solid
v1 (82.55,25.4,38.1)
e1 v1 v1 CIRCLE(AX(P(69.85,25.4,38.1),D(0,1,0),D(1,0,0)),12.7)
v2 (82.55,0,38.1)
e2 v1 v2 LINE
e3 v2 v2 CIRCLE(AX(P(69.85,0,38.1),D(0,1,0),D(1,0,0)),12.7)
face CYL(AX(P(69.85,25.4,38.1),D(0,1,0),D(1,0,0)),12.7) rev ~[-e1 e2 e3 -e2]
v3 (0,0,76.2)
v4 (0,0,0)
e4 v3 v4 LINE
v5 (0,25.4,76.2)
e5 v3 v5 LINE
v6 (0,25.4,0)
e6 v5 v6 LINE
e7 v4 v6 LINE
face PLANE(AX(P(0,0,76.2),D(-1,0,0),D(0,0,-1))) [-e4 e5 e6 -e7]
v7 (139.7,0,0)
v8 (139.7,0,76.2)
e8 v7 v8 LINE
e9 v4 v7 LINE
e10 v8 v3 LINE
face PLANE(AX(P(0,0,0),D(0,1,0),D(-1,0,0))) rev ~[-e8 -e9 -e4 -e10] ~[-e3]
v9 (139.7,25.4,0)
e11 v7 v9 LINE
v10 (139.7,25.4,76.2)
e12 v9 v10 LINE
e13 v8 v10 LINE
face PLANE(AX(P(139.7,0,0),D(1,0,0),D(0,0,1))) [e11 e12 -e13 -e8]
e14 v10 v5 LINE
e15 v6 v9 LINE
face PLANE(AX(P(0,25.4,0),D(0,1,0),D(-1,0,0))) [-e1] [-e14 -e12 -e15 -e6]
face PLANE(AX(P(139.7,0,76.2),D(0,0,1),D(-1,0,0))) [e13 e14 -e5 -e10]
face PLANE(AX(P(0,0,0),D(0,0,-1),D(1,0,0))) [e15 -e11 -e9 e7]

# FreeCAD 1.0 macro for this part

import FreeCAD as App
import Part
import Sketcher

V = App.Vector
Q = App.Units.Quantity

doc = App.newDocument("Part")
body = doc.addObject("PartDesign::Body", "Body")

sketch1 = doc.addObject("Sketcher::SketchObject", "Sketch")
body.addObject(sketch1)
sketch1.AttachmentSupport = (doc.XZ_Plane, [""])
sketch1.MapMode = "FlatFace"
sketch1.addGeometry(Part.LineSegment(V(140, 0, 0), V(0, 0, 0)), False)
sketch1.addGeometry(Part.LineSegment(V(0, 0, 0), V(0, 76, 0)), False)
sketch1.addGeometry(Part.LineSegment(V(0, 76, 0), V(140, 76, 0)), False)
sketch1.addGeometry(Part.LineSegment(V(140, 76, 0), V(140, 0, 0)), False)
sketch1.addConstraint(Sketcher.Constraint("Coincident", 0, 2, 1, 1))
sketch1.addConstraint(Sketcher.Constraint("Coincident", 1, 2, 2, 1))
sketch1.addConstraint(Sketcher.Constraint("Coincident", 2, 2, 3, 1))
sketch1.addConstraint(Sketcher.Constraint("Coincident", 3, 2, 0, 1))
sketch1.addConstraint(Sketcher.Constraint("Horizontal", 0))
sketch1.addConstraint(Sketcher.Constraint("Vertical", 1))
sketch1.addConstraint(Sketcher.Constraint("Horizontal", 2))
sketch1.addConstraint(Sketcher.Constraint("Vertical", 3))
sketch1.addConstraint(Sketcher.Constraint("Coincident", 0, 2, -1, 1))
sketch1.addConstraint(Sketcher.Constraint("DistanceY", 1, 1, 1, 2, Q("3 in")))
sketch1.addConstraint(Sketcher.Constraint("DistanceX", 0, 2, 0, 1, Q("5.5 in")))
pad1 = doc.addObject("PartDesign::Pad", "Pad")
body.addObject(pad1)
pad1.Profile = sketch1
pad1.Length = Q("1 in")
pad1.Reversed = True

sketch2 = doc.addObject("Sketcher::SketchObject", "Sketch001")
body.addObject(sketch2)
sketch2.AttachmentSupport = (doc.XZ_Plane, [""])
sketch2.MapMode = "FlatFace"
sketch2.AttachmentOffset = App.Placement(V(0, 0, -1 * 25.4), App.Rotation())
sketch2.addGeometry(Part.Circle(V(70, 38, 0), V(0, 0, 1), 13), False)
sketch2.addConstraint(Sketcher.Constraint("Diameter", 0, Q("1 in")))
sketch2.addConstraint(Sketcher.Constraint("DistanceY", -1, 1, 0, 3, Q("1.5 in")))
sketch2.addConstraint(Sketcher.Constraint("DistanceX", -1, 1, 0, 3, Q("2.75 in")))
pocket1 = doc.addObject("PartDesign::Pocket", "Pocket")
body.addObject(pocket1)
pocket1.Profile = sketch2
pocket1.Length = Q("1 in")
pocket1.Reversed = True

doc.recompute()
